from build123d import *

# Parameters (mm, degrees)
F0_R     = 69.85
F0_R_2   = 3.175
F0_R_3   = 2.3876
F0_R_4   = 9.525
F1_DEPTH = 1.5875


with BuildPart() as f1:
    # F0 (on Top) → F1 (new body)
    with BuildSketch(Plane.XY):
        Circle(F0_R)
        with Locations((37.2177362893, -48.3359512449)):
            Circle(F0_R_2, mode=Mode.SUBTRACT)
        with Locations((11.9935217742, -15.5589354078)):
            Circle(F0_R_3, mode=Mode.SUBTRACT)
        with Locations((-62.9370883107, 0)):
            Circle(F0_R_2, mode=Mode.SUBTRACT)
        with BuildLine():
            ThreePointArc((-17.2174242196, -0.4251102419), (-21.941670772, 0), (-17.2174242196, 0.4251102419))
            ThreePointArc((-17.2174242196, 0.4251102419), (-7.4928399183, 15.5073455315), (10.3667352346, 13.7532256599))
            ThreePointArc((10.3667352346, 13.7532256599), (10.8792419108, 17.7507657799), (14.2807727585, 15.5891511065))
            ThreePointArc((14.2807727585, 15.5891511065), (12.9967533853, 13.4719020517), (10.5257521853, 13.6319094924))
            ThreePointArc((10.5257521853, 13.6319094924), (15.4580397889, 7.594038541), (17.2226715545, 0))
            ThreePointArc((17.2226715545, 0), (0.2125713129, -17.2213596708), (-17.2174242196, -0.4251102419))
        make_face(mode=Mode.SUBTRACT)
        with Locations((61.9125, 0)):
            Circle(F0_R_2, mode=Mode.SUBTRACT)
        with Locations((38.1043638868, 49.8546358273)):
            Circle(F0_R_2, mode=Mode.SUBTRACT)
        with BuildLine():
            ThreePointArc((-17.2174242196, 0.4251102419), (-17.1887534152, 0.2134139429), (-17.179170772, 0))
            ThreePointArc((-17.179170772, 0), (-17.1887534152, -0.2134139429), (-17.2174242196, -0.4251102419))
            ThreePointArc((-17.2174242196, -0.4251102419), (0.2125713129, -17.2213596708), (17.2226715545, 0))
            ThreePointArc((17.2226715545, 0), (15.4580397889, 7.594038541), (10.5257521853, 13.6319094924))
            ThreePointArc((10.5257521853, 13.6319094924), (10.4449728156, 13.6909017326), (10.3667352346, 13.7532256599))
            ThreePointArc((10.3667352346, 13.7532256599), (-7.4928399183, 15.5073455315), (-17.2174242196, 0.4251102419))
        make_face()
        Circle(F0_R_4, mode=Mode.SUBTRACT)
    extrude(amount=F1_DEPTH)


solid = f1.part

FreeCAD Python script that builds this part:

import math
import FreeCAD as App
import Part
import Sketcher

V = App.Vector
Q = App.Units.Quantity

doc = App.newDocument("Part")
body = doc.addObject("PartDesign::Body", "Body")

# Sketch on XY plane
sketch1 = body.newObject("Sketcher::SketchObject", "Sketch")
sketch1.AttachmentSupport = (doc.getObject("XY_Plane"), [""])
sketch1.MapMode = "FlatFace"
sketch1.addGeometry([
    Part.Circle(V(0, 0, 0), V(0, 0, 1), 69.85),  # 0
    Part.Circle(V(-62.94, 0, 0), V(0, 0, 1), 3.17),  # 1
    Part.ArcOfCircle(Part.Circle(V(-19.56, 0, 0), V(0, 0, 1), 2.38), math.radians(10), math.radians(350)),  # 2
    Part.ArcOfCircle(Part.Circle(V(-19.56, 0, 0), V(0, 0, 1), 2.38), math.radians(0), math.radians(10.28)),  # 3
    Part.ArcOfCircle(Part.Circle(V(-19.56, 0, 0), V(0, 0, 1), 2.38), math.radians(-10.28), math.radians(0)),  # 4
    Part.Circle(V(37.22, -48.34, 0), V(0, 0, 1), 3.17),  # 5
    Part.Circle(V(11.99, -15.56, 0), V(0, 0, 1), 2.39),  # 6
    Part.Circle(V(0, 0, 0), V(0, 0, 1), 9.53),  # 7
    Part.Circle(V(61.91, 0, 0), V(0, 0, 1), 3.17),  # 8
    Part.ArcOfCircle(Part.Circle(V(11.89, 15.59, 0), V(0, 0, 1), 2.39), math.radians(-125), math.radians(0)),  # 9
    Part.ArcOfCircle(Part.Circle(V(11.89, 15.59, 0), V(0, 0, 1), 2.39), math.radians(-129.74), math.radians(-124.94)),  # 10
    Part.ArcOfCircle(Part.Circle(V(11.89, 15.59, 0), V(0, 0, 1), 2.39), math.radians(0), math.radians(230)),  # 11
    Part.Circle(V(38.1, 49.85, 0), V(0, 0, 1), 3.17),  # 12
], False)
sketch1.addConstraint([
    Sketcher.Constraint("Tangent", 2, 1, 3, 2),
    Sketcher.Constraint("Tangent", 3, 1, 4, 2),
    Sketcher.Constraint("Tangent", 4, 1, 2, 2),
    Sketcher.Constraint("Tangent", 9, 1, 10, 2),
    Sketcher.Constraint("Tangent", 10, 1, 11, 2),
    Sketcher.Constraint("Tangent", 11, 1, 9, 2),
    Sketcher.Constraint("Coincident", 0, 3, -1, 1),
    Sketcher.Constraint("Coincident", 7, 3, -1, 1),
    Sketcher.Constraint("Equal", 1, 5),
    Sketcher.Constraint("Equal", 5, 8),
    Sketcher.Constraint("Equal", 6, 9),
    Sketcher.Constraint("Equal", 8, 12),
    Sketcher.Constraint("Symmetric", 2, 1, 4, 1, -1),
    Sketcher.Constraint("PointOnObject", 1, 3, -1),
    Sketcher.Constraint("PointOnObject", 8, 3, -1),
    Sketcher.Constraint("PointOnObject", 3, 1, -1),
    Sketcher.Constraint("Horizontal", 10, 3, 11, 1),
    Sketcher.Constraint("Diameter", 0, Q("5.5 in")),
    Sketcher.Constraint("Diameter", 1, Q("0.25 in")),
    Sketcher.Constraint("Diameter", 7, Q("0.75 in")),
    Sketcher.Constraint("Diameter", 6, Q("0.188 in")),
    Sketcher.Constraint("Radius", 2, Q("0.09375 in")),
    Sketcher.Constraint("DistanceX", -1, 1, 8, 3, Q("2.4375 in")),
    Sketcher.Constraint("DistanceX", 1, 3, -1, 1, 62.937088),
    Sketcher.Constraint("DistanceX", 2, 3, -1, 1, 19.560421),
    Sketcher.Constraint("DistanceY", 5, 3, -1, 1, 48.335951),
    Sketcher.Constraint("DistanceX", -1, 1, 6, 3, 11.993522),
    Sketcher.Constraint("DistanceY", -1, 1, 9, 3, 15.589151),
    Sketcher.Constraint("DistanceY", -1, 1, 2, 1, 0.42511),
    Sketcher.Constraint("DistanceY", -1, 1, 9, 1, 13.631909),
    Sketcher.Constraint("DistanceX", 9, 3, 6, 3, 0.100349),
    Sketcher.Constraint("DistanceX", 11, 3, 12, 3, 26.211191),
    Sketcher.Constraint("DistanceX", -1, 1, 5, 3, 37.217736),
    Sketcher.Constraint("DistanceY", 6, 3, -1, 1, 15.558935),
    Sketcher.Constraint("DistanceY", -1, 1, 12, 3, 49.854636),
    Sketcher.Constraint("DistanceX", -1, 1, 10, 1, 10.366735),
])
pad1 = body.newObject("PartDesign::Pad", "Pad")
pad1.Profile = sketch1
pad1.Length = Q("0.0625 in")

doc.recompute()
